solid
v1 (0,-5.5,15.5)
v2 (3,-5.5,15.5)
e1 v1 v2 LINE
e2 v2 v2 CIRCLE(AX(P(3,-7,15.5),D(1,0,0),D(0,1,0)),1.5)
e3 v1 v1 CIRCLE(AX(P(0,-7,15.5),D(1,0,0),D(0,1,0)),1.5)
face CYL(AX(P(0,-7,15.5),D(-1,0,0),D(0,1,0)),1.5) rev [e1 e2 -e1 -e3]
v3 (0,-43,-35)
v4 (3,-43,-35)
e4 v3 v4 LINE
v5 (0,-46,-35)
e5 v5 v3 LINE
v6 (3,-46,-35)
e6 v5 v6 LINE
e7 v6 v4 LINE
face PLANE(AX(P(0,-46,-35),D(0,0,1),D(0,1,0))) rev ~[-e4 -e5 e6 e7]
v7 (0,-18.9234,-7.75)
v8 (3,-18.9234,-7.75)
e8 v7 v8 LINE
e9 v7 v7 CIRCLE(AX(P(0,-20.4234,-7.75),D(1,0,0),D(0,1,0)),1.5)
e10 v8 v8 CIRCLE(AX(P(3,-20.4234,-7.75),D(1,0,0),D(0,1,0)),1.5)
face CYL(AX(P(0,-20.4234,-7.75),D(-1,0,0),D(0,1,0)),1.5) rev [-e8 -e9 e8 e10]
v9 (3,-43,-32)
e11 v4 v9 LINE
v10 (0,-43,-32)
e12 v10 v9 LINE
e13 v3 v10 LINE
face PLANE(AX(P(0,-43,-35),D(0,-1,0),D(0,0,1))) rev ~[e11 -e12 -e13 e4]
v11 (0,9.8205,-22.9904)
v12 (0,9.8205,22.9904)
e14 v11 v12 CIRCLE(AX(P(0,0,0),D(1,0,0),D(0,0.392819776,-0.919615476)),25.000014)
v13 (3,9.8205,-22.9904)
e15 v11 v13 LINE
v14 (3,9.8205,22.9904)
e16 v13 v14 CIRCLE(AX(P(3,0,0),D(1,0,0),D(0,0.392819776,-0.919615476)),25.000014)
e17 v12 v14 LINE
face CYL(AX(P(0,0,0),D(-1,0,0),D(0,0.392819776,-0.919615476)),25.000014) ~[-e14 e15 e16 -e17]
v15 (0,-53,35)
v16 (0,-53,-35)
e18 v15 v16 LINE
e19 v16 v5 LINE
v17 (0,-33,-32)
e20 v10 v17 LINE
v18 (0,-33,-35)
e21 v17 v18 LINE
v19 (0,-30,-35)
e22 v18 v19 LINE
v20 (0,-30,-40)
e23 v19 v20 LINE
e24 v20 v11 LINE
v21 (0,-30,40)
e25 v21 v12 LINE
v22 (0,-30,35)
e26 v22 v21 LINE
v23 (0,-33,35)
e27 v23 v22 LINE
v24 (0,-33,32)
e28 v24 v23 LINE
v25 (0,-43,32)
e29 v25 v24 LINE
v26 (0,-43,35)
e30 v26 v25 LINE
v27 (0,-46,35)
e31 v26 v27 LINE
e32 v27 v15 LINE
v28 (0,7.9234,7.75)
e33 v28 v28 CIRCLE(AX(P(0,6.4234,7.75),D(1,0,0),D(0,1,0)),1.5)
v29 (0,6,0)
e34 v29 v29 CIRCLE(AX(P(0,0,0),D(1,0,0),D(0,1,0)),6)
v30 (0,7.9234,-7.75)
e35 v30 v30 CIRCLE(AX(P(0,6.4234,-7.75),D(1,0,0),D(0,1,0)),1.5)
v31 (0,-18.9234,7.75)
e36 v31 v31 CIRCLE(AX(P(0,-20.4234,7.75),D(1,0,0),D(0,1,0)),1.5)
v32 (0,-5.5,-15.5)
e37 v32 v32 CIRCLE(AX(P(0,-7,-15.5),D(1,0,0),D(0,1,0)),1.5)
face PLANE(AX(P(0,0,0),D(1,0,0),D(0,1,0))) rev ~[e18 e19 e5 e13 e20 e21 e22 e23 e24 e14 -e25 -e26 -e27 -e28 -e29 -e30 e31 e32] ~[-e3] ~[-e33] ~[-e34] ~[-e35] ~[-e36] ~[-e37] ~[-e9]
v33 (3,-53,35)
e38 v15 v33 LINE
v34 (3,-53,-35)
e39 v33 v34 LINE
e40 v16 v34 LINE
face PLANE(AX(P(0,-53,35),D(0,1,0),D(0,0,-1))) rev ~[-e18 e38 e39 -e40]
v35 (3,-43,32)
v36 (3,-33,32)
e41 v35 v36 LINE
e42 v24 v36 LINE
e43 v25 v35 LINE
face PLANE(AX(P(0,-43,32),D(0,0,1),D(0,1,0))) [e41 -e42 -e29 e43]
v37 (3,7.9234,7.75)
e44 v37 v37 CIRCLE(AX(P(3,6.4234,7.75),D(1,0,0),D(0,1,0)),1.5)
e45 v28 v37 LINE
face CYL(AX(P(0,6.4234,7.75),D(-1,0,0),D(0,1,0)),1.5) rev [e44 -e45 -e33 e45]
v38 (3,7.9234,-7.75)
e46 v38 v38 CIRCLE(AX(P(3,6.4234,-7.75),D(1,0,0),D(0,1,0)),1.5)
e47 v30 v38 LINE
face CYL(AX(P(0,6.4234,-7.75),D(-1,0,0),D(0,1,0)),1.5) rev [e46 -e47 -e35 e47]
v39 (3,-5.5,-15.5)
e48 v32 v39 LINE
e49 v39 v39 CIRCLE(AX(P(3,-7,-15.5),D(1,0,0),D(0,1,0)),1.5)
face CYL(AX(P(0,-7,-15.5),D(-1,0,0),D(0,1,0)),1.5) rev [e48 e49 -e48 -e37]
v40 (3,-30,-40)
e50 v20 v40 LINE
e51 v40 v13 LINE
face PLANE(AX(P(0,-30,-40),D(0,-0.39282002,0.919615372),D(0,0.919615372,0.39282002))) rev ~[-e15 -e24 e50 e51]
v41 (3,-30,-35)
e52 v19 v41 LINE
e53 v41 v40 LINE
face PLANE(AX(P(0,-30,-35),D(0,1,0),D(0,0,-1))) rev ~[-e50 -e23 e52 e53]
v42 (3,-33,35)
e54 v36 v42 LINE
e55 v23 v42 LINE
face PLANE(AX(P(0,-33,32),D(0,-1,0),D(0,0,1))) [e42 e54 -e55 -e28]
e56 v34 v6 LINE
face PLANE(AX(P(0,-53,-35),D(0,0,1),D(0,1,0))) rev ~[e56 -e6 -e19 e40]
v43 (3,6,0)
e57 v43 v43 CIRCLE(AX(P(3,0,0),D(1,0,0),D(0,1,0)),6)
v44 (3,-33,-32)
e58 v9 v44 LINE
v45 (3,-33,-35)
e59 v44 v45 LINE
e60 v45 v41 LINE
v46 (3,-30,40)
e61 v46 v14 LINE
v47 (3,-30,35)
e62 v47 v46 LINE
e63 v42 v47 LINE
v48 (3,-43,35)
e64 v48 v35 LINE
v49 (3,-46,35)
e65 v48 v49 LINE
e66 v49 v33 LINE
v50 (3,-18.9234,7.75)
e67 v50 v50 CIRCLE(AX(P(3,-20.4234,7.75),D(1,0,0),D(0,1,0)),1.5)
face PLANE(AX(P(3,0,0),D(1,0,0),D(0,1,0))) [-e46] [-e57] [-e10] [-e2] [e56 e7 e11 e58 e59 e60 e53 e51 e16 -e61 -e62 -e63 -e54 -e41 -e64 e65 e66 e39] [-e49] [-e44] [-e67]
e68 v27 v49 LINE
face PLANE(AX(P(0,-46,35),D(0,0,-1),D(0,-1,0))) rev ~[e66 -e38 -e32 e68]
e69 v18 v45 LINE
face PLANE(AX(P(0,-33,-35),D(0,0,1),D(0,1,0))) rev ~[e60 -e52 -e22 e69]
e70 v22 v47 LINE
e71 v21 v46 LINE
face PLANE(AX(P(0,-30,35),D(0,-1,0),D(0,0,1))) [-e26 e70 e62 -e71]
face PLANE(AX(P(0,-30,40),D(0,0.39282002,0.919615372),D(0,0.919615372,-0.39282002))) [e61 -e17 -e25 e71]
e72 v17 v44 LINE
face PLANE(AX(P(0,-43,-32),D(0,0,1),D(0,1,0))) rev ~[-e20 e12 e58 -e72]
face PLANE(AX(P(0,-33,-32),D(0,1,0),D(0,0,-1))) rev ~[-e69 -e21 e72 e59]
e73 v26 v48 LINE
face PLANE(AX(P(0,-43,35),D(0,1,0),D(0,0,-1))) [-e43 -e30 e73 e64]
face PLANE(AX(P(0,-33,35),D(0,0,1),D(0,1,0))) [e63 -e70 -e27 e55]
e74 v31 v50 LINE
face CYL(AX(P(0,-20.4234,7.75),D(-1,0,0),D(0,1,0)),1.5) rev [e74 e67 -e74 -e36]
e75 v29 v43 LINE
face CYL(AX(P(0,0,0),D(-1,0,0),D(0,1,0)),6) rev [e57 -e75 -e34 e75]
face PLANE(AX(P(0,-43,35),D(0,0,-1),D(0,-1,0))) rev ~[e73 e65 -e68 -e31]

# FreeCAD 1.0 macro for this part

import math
import FreeCAD as App
import Part
import Sketcher
from FreeCAD import Vector

doc = App.newDocument("Part")
body = doc.addObject("PartDesign::Body", "Body")

sketch1 = doc.addObject("Sketcher::SketchObject", "Sketch")
body.addObject(sketch1)
sketch1.AttachmentSupport = (doc.YZ_Plane, [""])
sketch1.MapMode = "FlatFace"
sketch1.addGeometry([
    Part.LineSegment(Vector(-30, -35, 0), Vector(-30, -40, 0)),
    Part.LineSegment(Vector(-30, -40, 0), Vector(9.8205, -22.9904, 0)),
    Part.ArcOfCircle(Part.Circle(Vector(0, 0, 0), Vector(0, 0, 1), 25.000014), math.radians(-66.869932), math.radians(66.869932)),
    Part.LineSegment(Vector(9.8205, 22.9904, 0), Vector(-30, 40, 0)),
    Part.LineSegment(Vector(-30, 40, 0), Vector(-30, 35, 0)),
    Part.LineSegment(Vector(-30, 35, 0), Vector(-33, 35, 0)),
    Part.LineSegment(Vector(-33, 35, 0), Vector(-33, 32, 0)),
    Part.LineSegment(Vector(-33, 32, 0), Vector(-43, 32, 0)),
    Part.LineSegment(Vector(-43, 32, 0), Vector(-43, 35, 0)),
    Part.LineSegment(Vector(-43, 35, 0), Vector(-53, 35, 0)),
    Part.LineSegment(Vector(-53, 35, 0), Vector(-53, -35, 0)),
    Part.LineSegment(Vector(-53, -35, 0), Vector(-43, -35, 0)),
    Part.LineSegment(Vector(-43, -35, 0), Vector(-43, -32, 0)),
    Part.LineSegment(Vector(-43, -32, 0), Vector(-33, -32, 0)),
    Part.LineSegment(Vector(-33, -32, 0), Vector(-33, -35, 0)),
    Part.LineSegment(Vector(-33, -35, 0), Vector(-30, -35, 0)),
    Part.Circle(Vector(-20.4234, -7.75, 0), Vector(0, 0, 1), 1.5),
    Part.Circle(Vector(-7, -15.5, 0), Vector(0, 0, 1), 1.5),
    Part.Circle(Vector(6.4234, -7.75, 0), Vector(0, 0, 1), 1.5),
    Part.Circle(Vector(-20.4234, 7.75, 0), Vector(0, 0, 1), 1.5),
    Part.Circle(Vector(0, 0, 0), Vector(0, 0, 1), 6),
    Part.Circle(Vector(-7, 15.5, 0), Vector(0, 0, 1), 1.5),
    Part.Circle(Vector(6.4234, 7.75, 0), Vector(0, 0, 1), 1.5),
], False)
sketch1.addConstraint([
    Sketcher.Constraint("Coincident", 0, 2, 1, 1),
    Sketcher.Constraint("Tangent", 1, 2, 2, 1),
    Sketcher.Constraint("Tangent", 2, 2, 3, 1),
    Sketcher.Constraint("Coincident", 3, 2, 4, 1),
    Sketcher.Constraint("Coincident", 4, 2, 5, 1),
    Sketcher.Constraint("Coincident", 5, 2, 6, 1),
    Sketcher.Constraint("Coincident", 6, 2, 7, 1),
    Sketcher.Constraint("Coincident", 7, 2, 8, 1),
    Sketcher.Constraint("Coincident", 8, 2, 9, 1),
    Sketcher.Constraint("Coincident", 9, 2, 10, 1),
    Sketcher.Constraint("Coincident", 10, 2, 11, 1),
    Sketcher.Constraint("Coincident", 11, 2, 12, 1),
    Sketcher.Constraint("Coincident", 12, 2, 13, 1),
    Sketcher.Constraint("Coincident", 13, 2, 14, 1),
    Sketcher.Constraint("Coincident", 14, 2, 15, 1),
    Sketcher.Constraint("Coincident", 15, 2, 0, 1),
    Sketcher.Constraint("Vertical", 0),
    Sketcher.Constraint("Vertical", 4),
    Sketcher.Constraint("Horizontal", 5),
    Sketcher.Constraint("Vertical", 6),
    Sketcher.Constraint("Horizontal", 7),
    Sketcher.Constraint("Vertical", 8),
    Sketcher.Constraint("Horizontal", 9),
    Sketcher.Constraint("Vertical", 10),
    Sketcher.Constraint("Horizontal", 11),
    Sketcher.Constraint("Vertical", 12),
    Sketcher.Constraint("Horizontal", 13),
    Sketcher.Constraint("Vertical", 14),
    Sketcher.Constraint("Horizontal", 15),
    Sketcher.Constraint("Coincident", 2, 3, -1, 1),
    Sketcher.Constraint("Coincident", 20, 3, -1, 1),
    Sketcher.Constraint("Equal", 16, 17),
    Sketcher.Constraint("Equal", 17, 18),
    Sketcher.Constraint("Equal", 18, 19),
    Sketcher.Constraint("Equal", 19, 21),
    Sketcher.Constraint("Equal", 21, 22),
    Sketcher.Constraint("Symmetric", 16, 3, 19, 3, -1),
    Sketcher.Constraint("Symmetric", 17, 3, 21, 3, -1),
    Sketcher.Constraint("Symmetric", 18, 3, 22, 3, -1),
    Sketcher.Constraint("Symmetric", 0, 2, 3, 2, -1),
    Sketcher.Constraint("Symmetric", 8, 2, 11, 2, -1),
    Sketcher.Constraint("Symmetric", 6, 2, 13, 2, -1),
    Sketcher.Constraint("Horizontal", 16, 3, 18, 3),
    Sketcher.Constraint("Horizontal", 5, 2, 8, 2),
    Sketcher.Constraint("Horizontal", 11, 2, 14, 2),
    Sketcher.Constraint("Equal", 7, 9),
    Sketcher.Constraint("Equal", 15, 6),
    Sketcher.Constraint("Diameter", 16, 3.0),
    Sketcher.Constraint("Diameter", 20, 12.0),
    Sketcher.Constraint("Radius", 2, 25.0),
    Sketcher.Constraint("DistanceX", 5, 2, 5, 1, 3.0),
    Sketcher.Constraint("DistanceX", 7, 2, 7, 1, 10.0),
    Sketcher.Constraint("DistanceY", 0, 2, 0, 1, 5.0),
    Sketcher.Constraint("DistanceY", 10, 2, 10, 1, 70.0),
    Sketcher.Constraint("DistanceX", 17, 3, -1, 1, 7.0),
    Sketcher.Constraint("DistanceX", 10, 2, 17, 3, 46.0),
    Sketcher.Constraint("DistanceY", 17, 3, -1, 1, 15.5),
    Sketcher.Constraint("DistanceY", 16, 3, 19, 3, 15.5),
    Sketcher.Constraint("DistanceX", 16, 3, -1, 1, 20.4234),
    Sketcher.Constraint("DistanceX", -1, 1, 18, 3, 6.4234),
])
pad1 = doc.addObject("PartDesign::Pad", "Pad")
body.addObject(pad1)
pad1.Profile = sketch1
pad1.Length = 3

doc.recompute()
